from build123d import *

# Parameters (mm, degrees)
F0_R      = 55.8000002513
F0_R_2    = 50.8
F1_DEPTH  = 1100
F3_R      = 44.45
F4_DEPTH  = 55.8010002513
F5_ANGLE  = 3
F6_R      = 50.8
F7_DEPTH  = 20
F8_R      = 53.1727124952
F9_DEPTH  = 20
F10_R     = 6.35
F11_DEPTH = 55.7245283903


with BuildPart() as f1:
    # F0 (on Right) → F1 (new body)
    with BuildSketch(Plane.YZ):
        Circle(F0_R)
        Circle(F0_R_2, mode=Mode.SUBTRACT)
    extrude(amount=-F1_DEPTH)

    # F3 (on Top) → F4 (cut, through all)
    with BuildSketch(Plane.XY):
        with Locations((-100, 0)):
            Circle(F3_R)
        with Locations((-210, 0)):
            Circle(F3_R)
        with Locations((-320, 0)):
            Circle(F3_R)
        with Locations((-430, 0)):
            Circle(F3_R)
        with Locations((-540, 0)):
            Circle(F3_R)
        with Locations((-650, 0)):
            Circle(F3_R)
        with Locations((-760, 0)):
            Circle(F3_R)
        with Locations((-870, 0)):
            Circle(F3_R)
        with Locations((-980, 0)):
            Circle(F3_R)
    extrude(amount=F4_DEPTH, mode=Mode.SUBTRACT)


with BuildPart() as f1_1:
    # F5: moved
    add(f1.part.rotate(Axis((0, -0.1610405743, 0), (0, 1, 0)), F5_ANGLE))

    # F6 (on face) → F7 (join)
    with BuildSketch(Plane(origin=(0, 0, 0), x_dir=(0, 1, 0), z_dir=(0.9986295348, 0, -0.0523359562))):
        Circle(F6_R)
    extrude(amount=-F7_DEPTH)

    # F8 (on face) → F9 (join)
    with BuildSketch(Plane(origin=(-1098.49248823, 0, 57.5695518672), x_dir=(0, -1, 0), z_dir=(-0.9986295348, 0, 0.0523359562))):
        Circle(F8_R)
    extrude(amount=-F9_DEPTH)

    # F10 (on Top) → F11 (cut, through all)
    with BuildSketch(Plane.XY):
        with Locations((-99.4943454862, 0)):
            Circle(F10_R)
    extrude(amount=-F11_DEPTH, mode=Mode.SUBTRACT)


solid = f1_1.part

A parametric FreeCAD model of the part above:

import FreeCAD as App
import Part
import Sketcher
from FreeCAD import Vector

doc = App.newDocument("Part")
body = doc.addObject("PartDesign::Body", "Body")

# Sketch on YZ plane
sketch1 = body.newObject("Sketcher::SketchObject", "Sketch")
sketch1.AttachmentSupport = (doc.getObject("YZ_Plane"), [""])
sketch1.MapMode = "FlatFace"
sketch1.addGeometry([
    Part.Circle(Vector(0, 0, 0), Vector(0, 0, 1), 56),
    Part.Circle(Vector(0, 0, 0), Vector(0, 0, 1), 51),
], False)
sketch1.addConstraint([
    Sketcher.Constraint("Coincident", 0, 3, -1, 1),
    Sketcher.Constraint("Coincident", 1, 3, -1, 1),
    Sketcher.Constraint("Diameter", 0, 111.600001),
    Sketcher.Constraint("Diameter", 1, 101.6),
])
pad1 = body.newObject("PartDesign::Pad", "Pad")
pad1.Profile = sketch1
pad1.Length = 1100
pad1.Reversed = True

# Sketch on XY plane
sketch2 = body.newObject("Sketcher::SketchObject", "Sketch001")
sketch2.AttachmentSupport = (doc.getObject("XY_Plane"), [""])
sketch2.MapMode = "FlatFace"
sketch2.addGeometry([
    Part.Circle(Vector(-100, 0, 0), Vector(0, 0, 1), 44),  # 0
    Part.Circle(Vector(-210, 0, 0), Vector(0, 0, 1), 44),  # 1
    Part.Circle(Vector(-320, 0, 0), Vector(0, 0, 1), 44),  # 2
    Part.Circle(Vector(-430, 0, 0), Vector(0, 0, 1), 44),  # 3
    Part.Circle(Vector(-540, 0, 0), Vector(0, 0, 1), 44),  # 4
    Part.Circle(Vector(-650, 0, 0), Vector(0, 0, 1), 44),  # 5
    Part.Circle(Vector(-760, 0, 0), Vector(0, 0, 1), 44),  # 6
    Part.Circle(Vector(-870, 0, 0), Vector(0, 0, 1), 44),  # 7
    Part.Circle(Vector(-980, 0, 0), Vector(0, 0, 1), 44),  # 8
], False)
sketch2.addConstraint([
    Sketcher.Constraint("Equal", 0, 1),
    Sketcher.Constraint("Equal", 1, 2),
    Sketcher.Constraint("Equal", 2, 3),
    Sketcher.Constraint("Equal", 3, 4),
    Sketcher.Constraint("Equal", 4, 5),
    Sketcher.Constraint("Equal", 5, 6),
    Sketcher.Constraint("Equal", 6, 7),
    Sketcher.Constraint("Equal", 7, 8),
    Sketcher.Constraint("PointOnObject", 0, 3, -1),
    Sketcher.Constraint("PointOnObject", 1, 3, -1),
    Sketcher.Constraint("PointOnObject", 2, 3, -1),
    Sketcher.Constraint("PointOnObject", 3, 3, -1),
    Sketcher.Constraint("PointOnObject", 4, 3, -1),
    Sketcher.Constraint("PointOnObject", 5, 3, -1),
    Sketcher.Constraint("PointOnObject", 6, 3, -1),
    Sketcher.Constraint("PointOnObject", 7, 3, -1),
    Sketcher.Constraint("PointOnObject", 8, 3, -1),
    Sketcher.Constraint("Diameter", 0, 88.9),
    Sketcher.Constraint("DistanceX", 0, 3, -1, 1, 100.0),
    Sketcher.Constraint("DistanceX", 1, 3, -1, 1, 210.0),
    Sketcher.Constraint("DistanceX", 2, 3, -1, 1, 320.0),
    Sketcher.Constraint("DistanceX", 3, 3, -1, 1, 430.0),
    Sketcher.Constraint("DistanceX", 4, 3, -1, 1, 540.0),
    Sketcher.Constraint("DistanceX", 5, 3, -1, 1, 650.0),
    Sketcher.Constraint("DistanceX", 6, 3, -1, 1, 760.0),
    Sketcher.Constraint("DistanceX", 7, 3, -1, 1, 870.0),
    Sketcher.Constraint("DistanceX", 8, 3, -1, 1, 980.0),
])
pocket1 = body.newObject("PartDesign::Pocket", "Pocket")
pocket1.Profile = sketch2
pocket1.Type = "ThroughAll"
pocket1.Reversed = True
body2 = doc.addObject("PartDesign::Body", "Body001")
doc.recompute()

body.Placement = App.Placement(Vector(0, 0, 0), App.Rotation(Vector(0, 1, 0), 3))
boolean = body2.newObject("PartDesign::Boolean", "Boolean")
boolean.Type = "Fuse"
boolean.addObjects([body])

# Sketch on an angled plane
sketch3 = body2.newObject("Sketcher::SketchObject", "Sketch002")
sketch3.Placement = App.Placement(Vector(0, 0, 0), App.Rotation(Vector(0, 1, 0), Vector(0.052335956, 0, 0.998629535), Vector(0.998629535, 0, -0.052335956), "ZXY"))
sketch3.addGeometry(Part.Circle(Vector(0, 0, 0), Vector(0, 0, 1), 51), False)
sketch3.addConstraint([
    Sketcher.Constraint("Coincident", 0, 3, -1, 1),
    Sketcher.Constraint("Diameter", 0, 101.6),
])
pad2 = body2.newObject("PartDesign::Pad", "Pad001")
pad2.Profile = sketch3
pad2.Length = 20
pad2.Reversed = True

# Sketch on an angled plane
sketch4 = body2.newObject("Sketcher::SketchObject", "Sketch003")
sketch4.Placement = App.Placement(Vector(-1098.492488, 0, 57.569552), App.Rotation(Vector(0, -1, 0), Vector(0.052335956, 0, 0.998629535), Vector(-0.998629535, 0, 0.052335956), "ZXY"))
sketch4.addGeometry(Part.Circle(Vector(0, 0, 0), Vector(0, 0, 1), 53), False)
sketch4.addConstraint([
    Sketcher.Constraint("Coincident", 0, 3, -1, 1),
    Sketcher.Constraint("Diameter", 0, 106.345425),
])
pad3 = body2.newObject("PartDesign::Pad", "Pad002")
pad3.Profile = sketch4
pad3.Length = 20
pad3.Reversed = True

# Sketch on XY plane
sketch5 = body2.newObject("Sketcher::SketchObject", "Sketch004")
sketch5.AttachmentSupport = (doc.getObject("XY_Plane001"), [""])
sketch5.MapMode = "FlatFace"
sketch5.addGeometry(Part.Circle(Vector(-99, 0, 0), Vector(0, 0, 1), 6), False)
sketch5.addConstraint([
    Sketcher.Constraint("PointOnObject", 0, 3, -1),
    Sketcher.Constraint("Diameter", 0, 12.7),
    Sketcher.Constraint("DistanceX", 0, 3, -1, 1, 99.494345),
])
pocket2 = body2.newObject("PartDesign::Pocket", "Pocket001")
pocket2.Profile = sketch5
pocket2.Type = "ThroughAll"

doc.recompute()
